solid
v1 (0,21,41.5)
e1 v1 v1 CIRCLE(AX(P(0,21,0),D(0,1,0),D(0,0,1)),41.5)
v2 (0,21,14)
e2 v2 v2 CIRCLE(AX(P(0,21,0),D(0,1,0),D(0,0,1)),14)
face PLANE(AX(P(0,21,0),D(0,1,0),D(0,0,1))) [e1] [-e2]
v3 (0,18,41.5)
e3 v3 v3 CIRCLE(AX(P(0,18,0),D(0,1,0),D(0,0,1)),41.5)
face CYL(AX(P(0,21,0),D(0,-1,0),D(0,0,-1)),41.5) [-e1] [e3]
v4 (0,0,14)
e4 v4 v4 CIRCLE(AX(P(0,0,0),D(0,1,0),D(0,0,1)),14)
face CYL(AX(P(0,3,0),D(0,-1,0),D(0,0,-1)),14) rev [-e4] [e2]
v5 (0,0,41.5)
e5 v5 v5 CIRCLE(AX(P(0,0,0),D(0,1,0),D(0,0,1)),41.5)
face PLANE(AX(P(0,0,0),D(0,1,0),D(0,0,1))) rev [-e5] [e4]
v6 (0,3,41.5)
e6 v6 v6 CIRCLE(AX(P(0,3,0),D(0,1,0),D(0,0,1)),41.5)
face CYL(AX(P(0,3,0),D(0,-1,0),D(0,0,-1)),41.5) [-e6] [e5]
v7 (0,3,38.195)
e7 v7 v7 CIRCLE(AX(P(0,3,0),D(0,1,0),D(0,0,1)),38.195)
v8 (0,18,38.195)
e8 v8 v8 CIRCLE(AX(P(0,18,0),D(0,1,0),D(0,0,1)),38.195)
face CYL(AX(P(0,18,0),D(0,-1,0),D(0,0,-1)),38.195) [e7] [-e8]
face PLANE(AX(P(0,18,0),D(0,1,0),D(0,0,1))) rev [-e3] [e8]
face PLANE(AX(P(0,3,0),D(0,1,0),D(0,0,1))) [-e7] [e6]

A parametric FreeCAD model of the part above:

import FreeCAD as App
import Part
import Sketcher
from FreeCAD import Vector
Q = App.Units.Quantity

doc = App.newDocument("Part")
body = doc.addObject("PartDesign::Body", "Body")

sketch1 = body.newObject("Sketcher::SketchObject", "Sketch")
sketch1.AttachmentSupport = (doc.getObject("XZ_Plane"), [""])
sketch1.MapMode = "FlatFace"
sketch1.addGeometry([
    Part.Circle(Vector(0, 0, 0), Vector(0, 0, 1), 42),
    Part.Circle(Vector(0, 0, 0), Vector(0, 0, 1), 14),
], False)
sketch1.addConstraint([
    Sketcher.Constraint("Coincident", 0, 3, -1, 1),
    Sketcher.Constraint("Coincident", 1, 3, -1, 1),
    Sketcher.Constraint("Diameter", 0, Q("83 mm")),
    Sketcher.Constraint("Diameter", 1, Q("28 mm")),
])
pad1 = body.newObject("PartDesign::Pad", "Pad")
pad1.Profile = sketch1
pad1.Length = 3
pad1.Reversed = True

sketch2 = body.newObject("Sketcher::SketchObject", "Sketch001")
sketch2.AttachmentSupport = (doc.getObject("XZ_Plane"), [""])
sketch2.MapMode = "FlatFace"
sketch2.AttachmentOffset = App.Placement(Vector(0, 0, -3), App.Rotation())
sketch2.addGeometry([
    Part.Circle(Vector(0, 0, 0), Vector(0, 0, 1), 38),
    Part.Circle(Vector(0, 0, 0), Vector(0, 0, 1), 14),
], False)
sketch2.addConstraint([
    Sketcher.Constraint("Coincident", 0, 3, -1, 1),
    Sketcher.Constraint("Coincident", 1, 3, -1, 1),
    Sketcher.Constraint("Diameter", 1, Q("28 mm")),
    Sketcher.Constraint("Diameter", 0, Q("76.39 mm")),
])
pad2 = body.newObject("PartDesign::Pad", "Pad001")
pad2.Profile = sketch2
pad2.Length = 15
pad2.Reversed = True

sketch3 = body.newObject("Sketcher::SketchObject", "Sketch002")
sketch3.AttachmentSupport = (doc.getObject("XZ_Plane"), [""])
sketch3.MapMode = "FlatFace"
sketch3.AttachmentOffset = App.Placement(Vector(0, 0, -18), App.Rotation())
sketch3.addGeometry([
    Part.Circle(Vector(0, 0, 0), Vector(0, 0, 1), 42),
    Part.Circle(Vector(0, 0, 0), Vector(0, 0, 1), 14),
], False)
sketch3.addConstraint([
    Sketcher.Constraint("Coincident", 0, 3, -1, 1),
    Sketcher.Constraint("Coincident", 1, 3, -1, 1),
    Sketcher.Constraint("Diameter", 0, Q("83 mm")),
    Sketcher.Constraint("Diameter", 1, Q("28 mm")),
])
pad3 = body.newObject("PartDesign::Pad", "Pad002")
pad3.Profile = sketch3
pad3.Length = 3
pad3.Reversed = True

doc.recompute()
